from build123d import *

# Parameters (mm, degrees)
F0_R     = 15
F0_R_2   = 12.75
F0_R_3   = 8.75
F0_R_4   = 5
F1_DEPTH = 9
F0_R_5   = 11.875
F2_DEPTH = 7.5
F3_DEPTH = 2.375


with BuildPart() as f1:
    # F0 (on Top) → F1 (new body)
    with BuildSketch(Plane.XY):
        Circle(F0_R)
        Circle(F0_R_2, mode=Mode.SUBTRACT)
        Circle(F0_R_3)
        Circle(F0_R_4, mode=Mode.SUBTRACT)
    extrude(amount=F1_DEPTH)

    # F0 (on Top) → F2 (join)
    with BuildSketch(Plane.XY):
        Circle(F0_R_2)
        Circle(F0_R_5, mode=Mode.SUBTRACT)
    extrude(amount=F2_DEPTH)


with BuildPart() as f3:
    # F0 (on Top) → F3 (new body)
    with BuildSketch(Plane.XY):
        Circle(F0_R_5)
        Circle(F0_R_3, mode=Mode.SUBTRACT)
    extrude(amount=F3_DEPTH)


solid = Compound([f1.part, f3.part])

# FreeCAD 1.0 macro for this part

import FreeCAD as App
import Part
import Sketcher
from FreeCAD import Vector
Q = App.Units.Quantity

doc = App.newDocument("Part")
body = doc.addObject("PartDesign::Body", "Body")
body.AllowCompound = True

sketch1 = body.newObject("Sketcher::SketchObject", "Sketch")
sketch1.AttachmentSupport = (doc.getObject("XY_Plane"), [""])
sketch1.MapMode = "FlatFace"
sketch1.addGeometry([
    Part.Circle(Vector(0, 0, 0), Vector(0, 0, 1), 15),
    Part.Circle(Vector(0, 0, 0), Vector(0, 0, 1), 12.75),
    Part.Circle(Vector(0, 0, 0), Vector(0, 0, 1), 8.75),
    Part.Circle(Vector(0, 0, 0), Vector(0, 0, 1), 5),
], False)
sketch1.addConstraint([
    Sketcher.Constraint("Coincident", 0, 3, -1, 1),
    Sketcher.Constraint("Coincident", 1, 3, -1, 1),
    Sketcher.Constraint("Coincident", 2, 3, -1, 1),
    Sketcher.Constraint("Coincident", 3, 3, -1, 1),
    Sketcher.Constraint("Diameter", 0, Q("30 mm")),
    Sketcher.Constraint("Diameter", 3, Q("10 mm")),
    Sketcher.Constraint("Diameter", 1, Q("25.5 mm")),
    Sketcher.Constraint("Diameter", 2, Q("17.5 mm")),
])
pad1 = body.newObject("PartDesign::Pad", "Pad")
pad1.Profile = sketch1
pad1.Length = 9

sketch2 = body.newObject("Sketcher::SketchObject", "Sketch001")
sketch2.AttachmentSupport = (doc.getObject("XY_Plane"), [""])
sketch2.MapMode = "FlatFace"
sketch2.addGeometry([
    Part.Circle(Vector(0, 0, 0), Vector(0, 0, 1), 12.75),
    Part.Circle(Vector(0, 0, 0), Vector(0, 0, 1), 11.875),
], False)
sketch2.addConstraint([
    Sketcher.Constraint("Coincident", 0, 3, -1, 1),
    Sketcher.Constraint("Coincident", 1, 3, -1, 1),
    Sketcher.Constraint("Diameter", 0, Q("25.5 mm")),
    Sketcher.Constraint("Diameter", 1, Q("23.75 mm")),
])
pad2 = body.newObject("PartDesign::Pad", "Pad001")
pad2.Profile = sketch2
pad2.Length = 7.5
body2 = doc.addObject("PartDesign::Body", "Body001")

sketch3 = body2.newObject("Sketcher::SketchObject", "Sketch002")
sketch3.AttachmentSupport = (doc.getObject("XY_Plane001"), [""])
sketch3.MapMode = "FlatFace"
sketch3.addGeometry([
    Part.Circle(Vector(0, 0, 0), Vector(0, 0, 1), 11.875),
    Part.Circle(Vector(0, 0, 0), Vector(0, 0, 1), 8.75),
], False)
sketch3.addConstraint([
    Sketcher.Constraint("Coincident", 0, 3, -1, 1),
    Sketcher.Constraint("Coincident", 1, 3, -1, 1),
    Sketcher.Constraint("Diameter", 1, Q("17.5 mm")),
    Sketcher.Constraint("Diameter", 0, Q("23.75 mm")),
])
pad3 = body2.newObject("PartDesign::Pad", "Pad002")
pad3.Profile = sketch3
pad3.Length = 2.375

doc.recompute()
